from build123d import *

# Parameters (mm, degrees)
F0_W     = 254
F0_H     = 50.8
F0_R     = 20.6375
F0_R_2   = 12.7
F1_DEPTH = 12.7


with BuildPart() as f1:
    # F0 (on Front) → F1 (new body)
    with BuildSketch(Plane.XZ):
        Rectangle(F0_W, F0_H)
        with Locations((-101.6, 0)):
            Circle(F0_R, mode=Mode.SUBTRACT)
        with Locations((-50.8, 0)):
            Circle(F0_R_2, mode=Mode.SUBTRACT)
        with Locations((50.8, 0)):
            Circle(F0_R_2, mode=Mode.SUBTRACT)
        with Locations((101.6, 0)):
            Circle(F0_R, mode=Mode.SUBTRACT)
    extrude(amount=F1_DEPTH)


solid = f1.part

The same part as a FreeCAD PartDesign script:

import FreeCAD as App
import Part
import Sketcher

V = App.Vector
Q = App.Units.Quantity


def add_polygon(sketch, points):
    """Adds a closed chain of lines whose ends are joined by coincident constraints."""
    first, n = sketch.GeometryCount, len(points)
    for a, b in zip(points, points[1:] + points[:1]):
        sketch.addGeometry(Part.LineSegment(App.Vector(*a, 0), App.Vector(*b, 0)), False)
    for i in range(n):
        sketch.addConstraint(Sketcher.Constraint("Coincident", first + i, 2, first + (i + 1) % n, 1))

doc = App.newDocument("Part")
body = doc.addObject("PartDesign::Body", "Body")

# Sketch on XZ plane
sketch1 = doc.addObject("Sketcher::SketchObject", "Sketch")
body.addObject(sketch1)
sketch1.AttachmentSupport = (doc.XZ_Plane, [""])
sketch1.MapMode = "FlatFace"
add_polygon(sketch1, [(-127, 25), (-127, -25), (127, -25), (127, 25)])  # lines 0-3
sketch1.addGeometry(Part.Circle(V(-102, 0, 0), V(0, 0, 1), 21), False)  # 4
sketch1.addGeometry(Part.Circle(V(-51, 0, 0), V(0, 0, 1), 13), False)  # 5
sketch1.addGeometry(Part.Circle(V(51, 0, 0), V(0, 0, 1), 13), False)  # 6
sketch1.addGeometry(Part.Circle(V(102, 0, 0), V(0, 0, 1), 21), False)  # 7
sketch1.addConstraint(Sketcher.Constraint("Vertical", 0))
sketch1.addConstraint(Sketcher.Constraint("Horizontal", 1))
sketch1.addConstraint(Sketcher.Constraint("Vertical", 2))
sketch1.addConstraint(Sketcher.Constraint("Horizontal", 3))
sketch1.addConstraint(Sketcher.Constraint("Equal", 5, 6))
sketch1.addConstraint(Sketcher.Constraint("Equal", 4, 7))
sketch1.addConstraint(Sketcher.Constraint("Symmetric", 5, 3, 6, 3, -1, 1))
sketch1.addConstraint(Sketcher.Constraint("Symmetric", 4, 3, 7, 3, -1, 1))
sketch1.addConstraint(Sketcher.Constraint("Symmetric", 0, 2, 2, 2, -1, 1))
sketch1.addConstraint(Sketcher.Constraint("PointOnObject", 4, 3, -1))
sketch1.addConstraint(Sketcher.Constraint("PointOnObject", 5, 3, -1))
sketch1.addConstraint(Sketcher.Constraint("Diameter", 5, Q("1 in")))
sketch1.addConstraint(Sketcher.Constraint("DistanceX", 1, 1, 1, 2, Q("10 in")))
sketch1.addConstraint(Sketcher.Constraint("DistanceY", 0, 2, 0, 1, Q("2 in")))
sketch1.addConstraint(Sketcher.Constraint("Diameter", 4, Q("1.625 in")))
sketch1.addConstraint(Sketcher.Constraint("DistanceX", 4, 3, -1, 1, Q("4 in")))
sketch1.addConstraint(Sketcher.Constraint("DistanceX", 5, 3, -1, 1, Q("2 in")))
pad1 = doc.addObject("PartDesign::Pad", "Pad")
body.addObject(pad1)
pad1.Profile = sketch1
pad1.Length = Q("0.5 in")

doc.recompute()
